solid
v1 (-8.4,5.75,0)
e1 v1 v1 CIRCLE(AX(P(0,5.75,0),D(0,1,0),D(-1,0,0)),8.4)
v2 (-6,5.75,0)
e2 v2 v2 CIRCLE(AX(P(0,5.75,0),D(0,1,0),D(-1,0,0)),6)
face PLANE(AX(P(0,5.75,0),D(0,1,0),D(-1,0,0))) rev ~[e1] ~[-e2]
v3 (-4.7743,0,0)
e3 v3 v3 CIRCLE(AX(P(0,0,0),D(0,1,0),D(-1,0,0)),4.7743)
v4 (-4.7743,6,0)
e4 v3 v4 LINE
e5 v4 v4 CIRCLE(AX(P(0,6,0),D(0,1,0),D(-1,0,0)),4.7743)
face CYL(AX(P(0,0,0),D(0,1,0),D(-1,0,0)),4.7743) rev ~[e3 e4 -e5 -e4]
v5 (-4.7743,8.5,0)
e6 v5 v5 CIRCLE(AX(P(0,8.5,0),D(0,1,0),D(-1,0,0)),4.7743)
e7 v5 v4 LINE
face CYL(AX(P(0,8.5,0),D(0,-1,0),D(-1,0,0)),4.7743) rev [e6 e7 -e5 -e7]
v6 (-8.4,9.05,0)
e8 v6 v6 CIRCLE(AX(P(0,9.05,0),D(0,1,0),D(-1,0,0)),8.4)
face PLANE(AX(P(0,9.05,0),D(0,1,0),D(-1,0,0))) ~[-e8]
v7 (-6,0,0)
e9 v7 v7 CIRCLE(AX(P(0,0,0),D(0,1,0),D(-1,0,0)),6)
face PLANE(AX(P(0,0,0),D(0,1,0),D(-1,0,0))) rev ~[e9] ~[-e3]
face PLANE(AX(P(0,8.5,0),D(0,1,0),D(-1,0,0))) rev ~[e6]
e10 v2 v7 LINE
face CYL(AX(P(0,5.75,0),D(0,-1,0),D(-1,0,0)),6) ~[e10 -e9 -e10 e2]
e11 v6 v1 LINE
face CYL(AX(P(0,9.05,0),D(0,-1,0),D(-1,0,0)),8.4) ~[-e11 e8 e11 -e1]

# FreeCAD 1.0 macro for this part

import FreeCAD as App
import Part
import Sketcher

V = App.Vector
Q = App.Units.Quantity

doc = App.newDocument("Part")
body = doc.addObject("PartDesign::Body", "Body")

# Sketch on XY plane
sketch1 = body.newObject("Sketcher::SketchObject", "Sketch")
sketch1.AttachmentSupport = (doc.getObject("XY_Plane"), [""])
sketch1.MapMode = "FlatFace"
sketch1.addGeometry([
    Part.LineSegment(V(0, 8.5, 0), V(0, 9.1, 0)),  # 0
    Part.LineSegment(V(0, 9.1, 0), V(-8.4, 9.1, 0)),  # 1
    Part.LineSegment(V(-8.4, 9.1, 0), V(-8.4, 5.8, 0)),  # 2
    Part.LineSegment(V(-8.4, 5.8, 0), V(-6, 5.8, 0)),  # 3
    Part.LineSegment(V(-6, 5.8, 0), V(-6, 0, 0)),  # 4
    Part.LineSegment(V(-6, 0, 0), V(-4.8, 0, 0)),  # 5
    Part.LineSegment(V(-4.8, 0, 0), V(-4.8, 8.5, 0)),  # 6
    Part.LineSegment(V(-4.8, 8.5, 0), V(0, 8.5, 0)),  # 7
], False)
sketch1.addConstraint([
    Sketcher.Constraint("Coincident", 0, 2, 1, 1),
    Sketcher.Constraint("Coincident", 1, 2, 2, 1),
    Sketcher.Constraint("Coincident", 2, 2, 3, 1),
    Sketcher.Constraint("Coincident", 3, 2, 4, 1),
    Sketcher.Constraint("Coincident", 4, 2, 5, 1),
    Sketcher.Constraint("Coincident", 5, 2, 6, 1),
    Sketcher.Constraint("Coincident", 6, 2, 7, 1),
    Sketcher.Constraint("Coincident", 7, 2, 0, 1),
    Sketcher.Constraint("Vertical", 0),
    Sketcher.Constraint("Horizontal", 1),
    Sketcher.Constraint("Vertical", 2),
    Sketcher.Constraint("Horizontal", 3),
    Sketcher.Constraint("Vertical", 4),
    Sketcher.Constraint("Horizontal", 5),
    Sketcher.Constraint("Vertical", 6),
    Sketcher.Constraint("Horizontal", 7),
    Sketcher.Constraint("PointOnObject", 0, 2, -2),
    Sketcher.Constraint("PointOnObject", 4, 2, -1),
    Sketcher.Constraint("DistanceX", 1, 2, 1, 1, Q("8.4 mm")),
    Sketcher.Constraint("DistanceY", 2, 2, 2, 1, Q("3.3 mm")),
    Sketcher.Constraint("DistanceX", 3, 2, -1, 1, Q("6 mm")),
    Sketcher.Constraint("DistanceY", 4, 2, 4, 1, Q("5.75 mm")),
    Sketcher.Constraint("DistanceY", 6, 1, 6, 2, Q("8.5 mm")),
    Sketcher.Constraint("DistanceX", 5, 1, 5, 2, Q("1.2257 mm")),
])
revolution = body.newObject("PartDesign::Revolution", "Revolution")
revolution.Profile = sketch1
revolution.ReferenceAxis = (sketch1, ["V_Axis"])
revolution.Angle = 360

doc.recompute()
